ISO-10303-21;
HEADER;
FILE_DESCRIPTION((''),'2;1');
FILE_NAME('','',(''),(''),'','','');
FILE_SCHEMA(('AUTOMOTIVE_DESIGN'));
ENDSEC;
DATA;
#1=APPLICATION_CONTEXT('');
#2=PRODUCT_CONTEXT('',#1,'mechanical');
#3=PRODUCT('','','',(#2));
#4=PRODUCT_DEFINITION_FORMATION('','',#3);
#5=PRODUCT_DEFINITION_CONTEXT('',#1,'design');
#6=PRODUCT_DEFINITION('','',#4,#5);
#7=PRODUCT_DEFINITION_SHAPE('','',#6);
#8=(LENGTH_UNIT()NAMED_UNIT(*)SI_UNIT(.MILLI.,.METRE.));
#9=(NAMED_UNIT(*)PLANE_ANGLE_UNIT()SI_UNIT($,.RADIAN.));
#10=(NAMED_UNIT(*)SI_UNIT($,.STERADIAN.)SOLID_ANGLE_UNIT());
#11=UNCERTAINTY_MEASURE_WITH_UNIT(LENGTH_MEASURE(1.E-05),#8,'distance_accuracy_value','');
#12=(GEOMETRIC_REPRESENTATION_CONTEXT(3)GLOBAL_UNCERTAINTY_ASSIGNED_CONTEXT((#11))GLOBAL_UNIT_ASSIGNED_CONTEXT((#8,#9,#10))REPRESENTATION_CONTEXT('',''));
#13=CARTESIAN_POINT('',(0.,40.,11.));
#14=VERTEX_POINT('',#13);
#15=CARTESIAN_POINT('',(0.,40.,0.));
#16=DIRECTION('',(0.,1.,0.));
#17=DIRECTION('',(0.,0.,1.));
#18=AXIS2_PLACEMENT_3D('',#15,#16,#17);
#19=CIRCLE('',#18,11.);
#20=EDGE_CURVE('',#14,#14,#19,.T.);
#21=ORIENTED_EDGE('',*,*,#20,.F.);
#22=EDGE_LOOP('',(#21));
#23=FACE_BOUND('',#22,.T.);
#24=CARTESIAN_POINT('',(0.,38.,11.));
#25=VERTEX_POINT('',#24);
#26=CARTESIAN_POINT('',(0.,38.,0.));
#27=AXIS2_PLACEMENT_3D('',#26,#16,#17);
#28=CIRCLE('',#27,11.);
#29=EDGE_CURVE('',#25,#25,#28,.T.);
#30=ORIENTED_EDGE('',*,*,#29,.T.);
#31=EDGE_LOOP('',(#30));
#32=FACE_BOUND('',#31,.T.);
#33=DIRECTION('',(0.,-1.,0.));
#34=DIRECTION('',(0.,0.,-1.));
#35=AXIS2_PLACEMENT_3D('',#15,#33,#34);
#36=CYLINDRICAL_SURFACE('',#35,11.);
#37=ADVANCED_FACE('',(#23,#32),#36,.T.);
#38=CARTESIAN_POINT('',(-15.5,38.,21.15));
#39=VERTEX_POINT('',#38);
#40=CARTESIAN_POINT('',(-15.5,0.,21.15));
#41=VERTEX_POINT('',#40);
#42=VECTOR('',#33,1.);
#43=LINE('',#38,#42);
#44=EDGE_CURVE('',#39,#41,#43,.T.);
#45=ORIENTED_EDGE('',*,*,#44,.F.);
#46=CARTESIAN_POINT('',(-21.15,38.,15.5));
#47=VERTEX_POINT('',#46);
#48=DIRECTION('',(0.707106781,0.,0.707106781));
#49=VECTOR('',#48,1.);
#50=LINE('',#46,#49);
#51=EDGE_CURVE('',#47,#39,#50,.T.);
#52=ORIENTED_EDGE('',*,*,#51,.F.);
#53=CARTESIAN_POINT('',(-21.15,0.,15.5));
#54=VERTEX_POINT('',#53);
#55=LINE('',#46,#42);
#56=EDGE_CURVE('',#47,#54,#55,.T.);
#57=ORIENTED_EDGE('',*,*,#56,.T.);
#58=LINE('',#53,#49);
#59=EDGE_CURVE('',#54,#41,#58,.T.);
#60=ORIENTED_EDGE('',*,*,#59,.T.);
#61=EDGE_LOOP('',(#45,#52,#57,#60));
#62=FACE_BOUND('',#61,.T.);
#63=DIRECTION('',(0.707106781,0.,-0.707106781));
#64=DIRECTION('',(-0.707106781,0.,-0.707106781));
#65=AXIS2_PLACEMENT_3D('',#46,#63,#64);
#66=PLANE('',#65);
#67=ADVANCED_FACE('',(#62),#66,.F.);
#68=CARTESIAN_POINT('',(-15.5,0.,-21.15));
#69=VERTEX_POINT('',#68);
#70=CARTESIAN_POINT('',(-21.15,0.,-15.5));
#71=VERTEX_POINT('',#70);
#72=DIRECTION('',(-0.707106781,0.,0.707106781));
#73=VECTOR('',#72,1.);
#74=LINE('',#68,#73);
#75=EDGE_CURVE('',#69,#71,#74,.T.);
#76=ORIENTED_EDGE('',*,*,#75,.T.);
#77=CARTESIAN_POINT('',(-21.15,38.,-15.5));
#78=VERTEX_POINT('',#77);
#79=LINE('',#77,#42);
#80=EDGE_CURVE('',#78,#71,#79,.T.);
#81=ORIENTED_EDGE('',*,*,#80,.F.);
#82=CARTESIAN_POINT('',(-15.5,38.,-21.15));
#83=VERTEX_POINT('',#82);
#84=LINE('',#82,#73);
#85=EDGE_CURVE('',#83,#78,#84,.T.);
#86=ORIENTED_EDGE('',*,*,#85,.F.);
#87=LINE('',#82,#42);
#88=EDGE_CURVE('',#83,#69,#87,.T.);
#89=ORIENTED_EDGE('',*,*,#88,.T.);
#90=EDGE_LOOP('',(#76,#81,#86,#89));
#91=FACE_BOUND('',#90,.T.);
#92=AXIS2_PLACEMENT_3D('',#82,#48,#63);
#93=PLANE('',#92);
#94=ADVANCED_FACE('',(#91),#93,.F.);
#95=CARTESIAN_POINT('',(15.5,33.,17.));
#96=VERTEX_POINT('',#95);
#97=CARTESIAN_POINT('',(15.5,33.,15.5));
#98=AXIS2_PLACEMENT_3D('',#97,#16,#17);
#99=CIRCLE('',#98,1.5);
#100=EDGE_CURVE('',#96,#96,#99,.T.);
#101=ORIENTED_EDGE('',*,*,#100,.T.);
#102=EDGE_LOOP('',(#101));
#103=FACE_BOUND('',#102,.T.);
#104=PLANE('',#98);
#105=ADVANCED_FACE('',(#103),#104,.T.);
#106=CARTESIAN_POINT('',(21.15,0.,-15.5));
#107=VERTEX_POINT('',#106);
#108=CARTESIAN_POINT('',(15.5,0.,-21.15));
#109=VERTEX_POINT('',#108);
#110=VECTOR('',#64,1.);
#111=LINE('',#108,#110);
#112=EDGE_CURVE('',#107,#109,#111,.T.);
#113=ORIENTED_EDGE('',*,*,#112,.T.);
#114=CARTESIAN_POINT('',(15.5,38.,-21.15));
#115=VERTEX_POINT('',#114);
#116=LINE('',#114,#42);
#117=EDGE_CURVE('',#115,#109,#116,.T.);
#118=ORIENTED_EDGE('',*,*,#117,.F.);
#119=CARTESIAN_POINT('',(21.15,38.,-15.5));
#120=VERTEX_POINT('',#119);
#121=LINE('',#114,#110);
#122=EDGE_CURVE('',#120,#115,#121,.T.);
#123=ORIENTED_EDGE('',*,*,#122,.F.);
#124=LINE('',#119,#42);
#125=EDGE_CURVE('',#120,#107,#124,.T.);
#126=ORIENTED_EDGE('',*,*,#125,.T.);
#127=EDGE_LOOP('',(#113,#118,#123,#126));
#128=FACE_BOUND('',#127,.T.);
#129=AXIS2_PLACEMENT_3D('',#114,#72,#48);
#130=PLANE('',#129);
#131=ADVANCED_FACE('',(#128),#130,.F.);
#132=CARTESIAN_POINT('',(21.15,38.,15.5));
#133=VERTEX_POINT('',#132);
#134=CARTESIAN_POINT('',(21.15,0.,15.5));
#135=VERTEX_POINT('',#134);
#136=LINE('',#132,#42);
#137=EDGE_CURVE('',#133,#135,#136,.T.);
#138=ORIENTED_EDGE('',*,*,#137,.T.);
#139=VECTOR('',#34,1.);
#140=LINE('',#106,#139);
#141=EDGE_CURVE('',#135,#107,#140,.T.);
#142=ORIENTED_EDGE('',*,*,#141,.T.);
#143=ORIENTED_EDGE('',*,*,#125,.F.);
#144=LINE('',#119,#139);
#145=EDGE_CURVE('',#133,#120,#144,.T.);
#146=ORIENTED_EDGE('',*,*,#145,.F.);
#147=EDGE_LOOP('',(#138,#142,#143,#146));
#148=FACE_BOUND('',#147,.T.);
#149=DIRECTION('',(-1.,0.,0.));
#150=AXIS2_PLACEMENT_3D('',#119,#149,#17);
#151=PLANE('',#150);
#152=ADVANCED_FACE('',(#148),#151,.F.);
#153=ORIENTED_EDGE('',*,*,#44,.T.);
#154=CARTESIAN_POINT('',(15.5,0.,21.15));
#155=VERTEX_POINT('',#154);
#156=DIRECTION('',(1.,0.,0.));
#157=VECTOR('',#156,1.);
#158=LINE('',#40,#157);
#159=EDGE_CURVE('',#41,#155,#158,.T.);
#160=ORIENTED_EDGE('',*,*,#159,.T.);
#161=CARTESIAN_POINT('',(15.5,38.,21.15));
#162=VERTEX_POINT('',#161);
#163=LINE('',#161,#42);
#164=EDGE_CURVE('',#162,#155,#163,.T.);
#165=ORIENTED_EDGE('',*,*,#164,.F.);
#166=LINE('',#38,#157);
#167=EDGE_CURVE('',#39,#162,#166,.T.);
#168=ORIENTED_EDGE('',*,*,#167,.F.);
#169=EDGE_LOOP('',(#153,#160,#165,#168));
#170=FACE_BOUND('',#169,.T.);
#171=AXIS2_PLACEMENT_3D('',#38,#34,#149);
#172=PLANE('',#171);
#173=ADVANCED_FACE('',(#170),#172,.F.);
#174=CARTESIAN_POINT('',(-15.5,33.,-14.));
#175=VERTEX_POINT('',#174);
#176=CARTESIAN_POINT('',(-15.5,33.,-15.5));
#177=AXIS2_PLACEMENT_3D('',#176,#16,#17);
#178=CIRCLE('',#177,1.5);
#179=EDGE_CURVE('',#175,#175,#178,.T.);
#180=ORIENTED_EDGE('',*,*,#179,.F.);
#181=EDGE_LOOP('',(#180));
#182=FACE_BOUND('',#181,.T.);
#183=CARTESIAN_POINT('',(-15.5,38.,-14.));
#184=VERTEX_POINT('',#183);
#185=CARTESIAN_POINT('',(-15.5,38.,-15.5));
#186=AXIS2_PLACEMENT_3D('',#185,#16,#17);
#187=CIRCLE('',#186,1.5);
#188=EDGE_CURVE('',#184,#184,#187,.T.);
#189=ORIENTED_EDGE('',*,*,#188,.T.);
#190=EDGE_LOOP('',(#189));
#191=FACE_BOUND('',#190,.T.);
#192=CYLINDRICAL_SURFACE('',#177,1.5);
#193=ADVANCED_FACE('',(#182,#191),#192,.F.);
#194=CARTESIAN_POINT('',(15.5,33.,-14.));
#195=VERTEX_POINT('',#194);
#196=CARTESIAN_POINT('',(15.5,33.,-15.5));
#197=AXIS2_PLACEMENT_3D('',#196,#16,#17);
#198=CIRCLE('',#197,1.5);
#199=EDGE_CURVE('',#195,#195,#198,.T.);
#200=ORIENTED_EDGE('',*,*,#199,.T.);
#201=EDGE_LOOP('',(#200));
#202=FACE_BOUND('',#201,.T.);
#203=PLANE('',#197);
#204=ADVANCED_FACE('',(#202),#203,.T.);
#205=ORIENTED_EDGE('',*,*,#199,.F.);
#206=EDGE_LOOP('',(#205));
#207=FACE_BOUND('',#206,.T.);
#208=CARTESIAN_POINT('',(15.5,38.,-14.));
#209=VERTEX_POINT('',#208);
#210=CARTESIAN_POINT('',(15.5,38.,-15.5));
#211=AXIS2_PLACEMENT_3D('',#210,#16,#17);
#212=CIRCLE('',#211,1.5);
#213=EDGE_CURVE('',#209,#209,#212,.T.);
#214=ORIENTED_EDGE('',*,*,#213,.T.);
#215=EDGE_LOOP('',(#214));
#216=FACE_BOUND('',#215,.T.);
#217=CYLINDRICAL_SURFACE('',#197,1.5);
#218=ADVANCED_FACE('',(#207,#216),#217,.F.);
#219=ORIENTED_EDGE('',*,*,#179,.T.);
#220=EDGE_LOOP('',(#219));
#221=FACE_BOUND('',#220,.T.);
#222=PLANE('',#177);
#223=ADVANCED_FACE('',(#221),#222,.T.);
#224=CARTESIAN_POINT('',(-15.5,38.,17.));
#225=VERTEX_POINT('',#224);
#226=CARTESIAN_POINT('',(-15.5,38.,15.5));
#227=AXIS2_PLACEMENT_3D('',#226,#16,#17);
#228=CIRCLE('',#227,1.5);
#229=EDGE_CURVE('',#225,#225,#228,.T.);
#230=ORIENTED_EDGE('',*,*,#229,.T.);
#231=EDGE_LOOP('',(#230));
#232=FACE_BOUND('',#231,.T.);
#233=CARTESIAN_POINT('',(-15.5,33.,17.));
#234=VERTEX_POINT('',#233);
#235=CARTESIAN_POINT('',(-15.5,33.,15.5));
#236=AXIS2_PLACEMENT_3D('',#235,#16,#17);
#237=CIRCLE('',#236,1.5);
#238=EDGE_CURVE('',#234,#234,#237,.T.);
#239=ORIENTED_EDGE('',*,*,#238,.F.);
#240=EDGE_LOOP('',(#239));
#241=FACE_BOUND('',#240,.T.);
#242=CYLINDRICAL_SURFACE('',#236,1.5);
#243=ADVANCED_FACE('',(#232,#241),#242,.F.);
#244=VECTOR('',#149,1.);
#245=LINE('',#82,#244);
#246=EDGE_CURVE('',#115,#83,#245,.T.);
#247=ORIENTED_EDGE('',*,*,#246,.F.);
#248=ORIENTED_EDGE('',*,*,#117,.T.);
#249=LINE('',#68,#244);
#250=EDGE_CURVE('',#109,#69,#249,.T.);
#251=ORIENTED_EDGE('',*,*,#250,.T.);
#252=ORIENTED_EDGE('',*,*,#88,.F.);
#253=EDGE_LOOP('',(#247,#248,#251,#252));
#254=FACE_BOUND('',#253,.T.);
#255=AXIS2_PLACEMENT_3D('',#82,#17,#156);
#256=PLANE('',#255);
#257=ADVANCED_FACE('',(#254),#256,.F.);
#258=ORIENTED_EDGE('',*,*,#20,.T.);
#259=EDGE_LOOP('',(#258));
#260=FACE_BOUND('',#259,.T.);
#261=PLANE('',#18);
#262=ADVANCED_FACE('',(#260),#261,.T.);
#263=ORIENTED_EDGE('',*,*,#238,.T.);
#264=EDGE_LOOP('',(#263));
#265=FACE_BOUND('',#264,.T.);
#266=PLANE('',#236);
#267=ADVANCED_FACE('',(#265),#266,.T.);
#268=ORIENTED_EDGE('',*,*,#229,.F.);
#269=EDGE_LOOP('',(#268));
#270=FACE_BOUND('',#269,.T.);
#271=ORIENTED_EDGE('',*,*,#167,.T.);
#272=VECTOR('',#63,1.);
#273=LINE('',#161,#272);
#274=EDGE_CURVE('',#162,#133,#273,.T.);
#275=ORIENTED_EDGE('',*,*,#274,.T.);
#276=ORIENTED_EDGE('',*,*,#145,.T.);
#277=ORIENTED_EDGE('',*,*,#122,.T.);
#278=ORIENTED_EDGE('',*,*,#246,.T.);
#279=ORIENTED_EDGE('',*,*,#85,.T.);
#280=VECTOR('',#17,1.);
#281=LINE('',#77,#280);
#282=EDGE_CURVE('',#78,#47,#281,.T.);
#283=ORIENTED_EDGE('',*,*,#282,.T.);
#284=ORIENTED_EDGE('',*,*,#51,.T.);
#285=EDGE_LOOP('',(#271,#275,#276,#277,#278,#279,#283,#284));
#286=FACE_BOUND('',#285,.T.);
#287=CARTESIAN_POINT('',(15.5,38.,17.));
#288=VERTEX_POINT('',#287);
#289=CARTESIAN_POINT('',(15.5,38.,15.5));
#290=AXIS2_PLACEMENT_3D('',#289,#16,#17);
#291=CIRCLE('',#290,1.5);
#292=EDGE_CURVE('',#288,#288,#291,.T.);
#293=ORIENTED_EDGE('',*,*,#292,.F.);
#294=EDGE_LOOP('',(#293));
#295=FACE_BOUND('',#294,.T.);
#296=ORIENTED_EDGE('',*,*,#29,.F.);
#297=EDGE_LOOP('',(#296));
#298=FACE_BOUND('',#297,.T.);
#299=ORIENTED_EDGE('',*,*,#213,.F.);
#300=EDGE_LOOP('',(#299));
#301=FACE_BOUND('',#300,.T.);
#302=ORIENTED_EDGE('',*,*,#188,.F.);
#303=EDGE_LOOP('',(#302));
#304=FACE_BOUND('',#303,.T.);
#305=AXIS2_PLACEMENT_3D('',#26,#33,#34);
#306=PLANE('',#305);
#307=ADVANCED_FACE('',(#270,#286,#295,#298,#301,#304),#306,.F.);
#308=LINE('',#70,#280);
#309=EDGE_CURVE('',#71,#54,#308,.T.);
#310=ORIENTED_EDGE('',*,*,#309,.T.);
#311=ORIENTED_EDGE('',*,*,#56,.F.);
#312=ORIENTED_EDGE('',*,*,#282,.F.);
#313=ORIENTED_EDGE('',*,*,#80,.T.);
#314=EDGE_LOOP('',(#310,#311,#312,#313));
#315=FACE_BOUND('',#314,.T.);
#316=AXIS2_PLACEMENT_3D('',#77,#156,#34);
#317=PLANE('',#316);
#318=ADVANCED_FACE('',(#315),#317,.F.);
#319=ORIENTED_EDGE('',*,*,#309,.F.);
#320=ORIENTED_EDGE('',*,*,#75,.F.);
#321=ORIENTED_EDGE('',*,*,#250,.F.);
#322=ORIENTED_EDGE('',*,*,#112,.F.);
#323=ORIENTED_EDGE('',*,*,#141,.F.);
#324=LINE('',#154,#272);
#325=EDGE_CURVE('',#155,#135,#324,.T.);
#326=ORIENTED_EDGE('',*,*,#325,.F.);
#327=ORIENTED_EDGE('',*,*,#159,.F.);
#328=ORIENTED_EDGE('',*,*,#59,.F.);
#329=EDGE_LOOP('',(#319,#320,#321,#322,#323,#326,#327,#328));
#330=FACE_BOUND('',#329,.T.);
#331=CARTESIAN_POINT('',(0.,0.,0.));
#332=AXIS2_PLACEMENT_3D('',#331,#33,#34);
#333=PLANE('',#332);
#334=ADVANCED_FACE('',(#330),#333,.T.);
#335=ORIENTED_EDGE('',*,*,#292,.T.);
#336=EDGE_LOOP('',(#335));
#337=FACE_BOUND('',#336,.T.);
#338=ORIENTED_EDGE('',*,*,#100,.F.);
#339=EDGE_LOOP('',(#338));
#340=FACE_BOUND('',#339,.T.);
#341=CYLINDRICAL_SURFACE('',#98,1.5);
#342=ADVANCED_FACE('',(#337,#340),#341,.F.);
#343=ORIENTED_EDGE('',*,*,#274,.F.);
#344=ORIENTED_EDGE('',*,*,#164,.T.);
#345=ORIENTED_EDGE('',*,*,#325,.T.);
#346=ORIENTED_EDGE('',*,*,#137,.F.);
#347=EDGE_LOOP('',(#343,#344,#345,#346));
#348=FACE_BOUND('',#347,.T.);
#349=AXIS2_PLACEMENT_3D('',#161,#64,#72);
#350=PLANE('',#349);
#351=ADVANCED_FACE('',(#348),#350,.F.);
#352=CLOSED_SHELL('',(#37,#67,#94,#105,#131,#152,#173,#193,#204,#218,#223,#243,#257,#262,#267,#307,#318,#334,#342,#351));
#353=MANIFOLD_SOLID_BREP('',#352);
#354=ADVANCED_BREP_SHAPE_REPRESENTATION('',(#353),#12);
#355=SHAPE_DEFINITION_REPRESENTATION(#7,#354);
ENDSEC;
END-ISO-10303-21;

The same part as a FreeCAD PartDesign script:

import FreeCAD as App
import Part
import Sketcher

V = App.Vector


def add_polygon(sketch, points):
    """Adds a closed chain of lines whose ends are joined by coincident constraints."""
    first, n = sketch.GeometryCount, len(points)
    for a, b in zip(points, points[1:] + points[:1]):
        sketch.addGeometry(Part.LineSegment(App.Vector(*a, 0), App.Vector(*b, 0)), False)
    for i in range(n):
        sketch.addConstraint(Sketcher.Constraint("Coincident", first + i, 2, first + (i + 1) % n, 1))

doc = App.newDocument("Part")
body = doc.addObject("PartDesign::Body", "Body")

# Sketch on XZ plane
sketch1 = body.newObject("Sketcher::SketchObject", "Sketch")
sketch1.AttachmentSupport = (doc.getObject("XZ_Plane"), [""])
sketch1.MapMode = "FlatFace"
add_polygon(sketch1, [(-16, -21), (-21, -16), (-21, 16), (-16, 21), (16, 21), (21, 16), (21, -16), (16, -21)])  # lines 0-7
sketch1.addConstraint([
    Sketcher.Constraint("Vertical", 1),
    Sketcher.Constraint("Horizontal", 3),
    Sketcher.Constraint("Vertical", 5),
    Sketcher.Constraint("Horizontal", 7),
    Sketcher.Constraint("Symmetric", 0, 2, 4, 2, -1, 1),
    Sketcher.Constraint("Symmetric", 2, 2, 6, 2, -1, 1),
    Sketcher.Constraint("Perpendicular", 0, 2),
    Sketcher.Constraint("Perpendicular", 2, 4),
    Sketcher.Constraint("Perpendicular", 4, 6),
    Sketcher.Constraint("Horizontal", 1, 2, 4, 2),
    Sketcher.Constraint("Vertical", 3, 2, 6, 2),
    Sketcher.Constraint("Equal", 7, 1),
    Sketcher.Constraint("DistanceX", 3, 1, 3, 2, 31.0),
    Sketcher.Constraint("DistanceX", 1, 2, 4, 2, 42.3),
])
pad1 = body.newObject("PartDesign::Pad", "Pad")
pad1.Profile = sketch1
pad1.Length = 38
pad1.Reversed = True

# Sketch on XZ plane
sketch2 = body.newObject("Sketcher::SketchObject", "Sketch001")
sketch2.AttachmentSupport = (doc.getObject("XZ_Plane"), [""])
sketch2.MapMode = "FlatFace"
sketch2.AttachmentOffset = App.Placement(V(0, 0, -38), App.Rotation())
sketch2.addGeometry(Part.Circle(V(0, 0, 0), V(0, 0, 1), 11), False)
sketch2.addConstraint([
    Sketcher.Constraint("Coincident", 0, 3, -1, 1),
    Sketcher.Constraint("Diameter", 0, 22.0),
])
pad2 = body.newObject("PartDesign::Pad", "Pad001")
pad2.Profile = sketch2
pad2.Length = 2
pad2.Reversed = True

# Sketch on XZ plane
sketch3 = body.newObject("Sketcher::SketchObject", "Sketch002")
sketch3.AttachmentSupport = (doc.getObject("XZ_Plane"), [""])
sketch3.MapMode = "FlatFace"
sketch3.AttachmentOffset = App.Placement(V(0, 0, -38), App.Rotation())
sketch3.addGeometry([
    Part.Circle(V(-15.5, -15.5, 0), V(0, 0, 1), 1.5),
    Part.Circle(V(15.5, -15.5, 0), V(0, 0, 1), 1.5),
    Part.Circle(V(15.5, 15.5, 0), V(0, 0, 1), 1.5),
    Part.Circle(V(-15.5, 15.5, 0), V(0, 0, 1), 1.5),
], False)
sketch3.addConstraint([
    Sketcher.Constraint("Equal", 0, 1),
    Sketcher.Constraint("Equal", 1, 2),
    Sketcher.Constraint("Equal", 2, 3),
    Sketcher.Constraint("Symmetric", 0, 3, 2, 3, -1, 1),
    Sketcher.Constraint("Symmetric", 1, 3, 3, 3, -1, 1),
    Sketcher.Constraint("Symmetric", 0, 3, 1, 3, -2),
    Sketcher.Constraint("Diameter", 0, 3.0),
    Sketcher.Constraint("DistanceX", 0, 3, 1, 3, 31.0),
    Sketcher.Constraint("DistanceY", 1, 3, 2, 3, 31.0),
])
pocket1 = body.newObject("PartDesign::Pocket", "Pocket")
pocket1.Profile = sketch3
pocket1.Length = 5
pocket1.Reversed = True

doc.recompute()
